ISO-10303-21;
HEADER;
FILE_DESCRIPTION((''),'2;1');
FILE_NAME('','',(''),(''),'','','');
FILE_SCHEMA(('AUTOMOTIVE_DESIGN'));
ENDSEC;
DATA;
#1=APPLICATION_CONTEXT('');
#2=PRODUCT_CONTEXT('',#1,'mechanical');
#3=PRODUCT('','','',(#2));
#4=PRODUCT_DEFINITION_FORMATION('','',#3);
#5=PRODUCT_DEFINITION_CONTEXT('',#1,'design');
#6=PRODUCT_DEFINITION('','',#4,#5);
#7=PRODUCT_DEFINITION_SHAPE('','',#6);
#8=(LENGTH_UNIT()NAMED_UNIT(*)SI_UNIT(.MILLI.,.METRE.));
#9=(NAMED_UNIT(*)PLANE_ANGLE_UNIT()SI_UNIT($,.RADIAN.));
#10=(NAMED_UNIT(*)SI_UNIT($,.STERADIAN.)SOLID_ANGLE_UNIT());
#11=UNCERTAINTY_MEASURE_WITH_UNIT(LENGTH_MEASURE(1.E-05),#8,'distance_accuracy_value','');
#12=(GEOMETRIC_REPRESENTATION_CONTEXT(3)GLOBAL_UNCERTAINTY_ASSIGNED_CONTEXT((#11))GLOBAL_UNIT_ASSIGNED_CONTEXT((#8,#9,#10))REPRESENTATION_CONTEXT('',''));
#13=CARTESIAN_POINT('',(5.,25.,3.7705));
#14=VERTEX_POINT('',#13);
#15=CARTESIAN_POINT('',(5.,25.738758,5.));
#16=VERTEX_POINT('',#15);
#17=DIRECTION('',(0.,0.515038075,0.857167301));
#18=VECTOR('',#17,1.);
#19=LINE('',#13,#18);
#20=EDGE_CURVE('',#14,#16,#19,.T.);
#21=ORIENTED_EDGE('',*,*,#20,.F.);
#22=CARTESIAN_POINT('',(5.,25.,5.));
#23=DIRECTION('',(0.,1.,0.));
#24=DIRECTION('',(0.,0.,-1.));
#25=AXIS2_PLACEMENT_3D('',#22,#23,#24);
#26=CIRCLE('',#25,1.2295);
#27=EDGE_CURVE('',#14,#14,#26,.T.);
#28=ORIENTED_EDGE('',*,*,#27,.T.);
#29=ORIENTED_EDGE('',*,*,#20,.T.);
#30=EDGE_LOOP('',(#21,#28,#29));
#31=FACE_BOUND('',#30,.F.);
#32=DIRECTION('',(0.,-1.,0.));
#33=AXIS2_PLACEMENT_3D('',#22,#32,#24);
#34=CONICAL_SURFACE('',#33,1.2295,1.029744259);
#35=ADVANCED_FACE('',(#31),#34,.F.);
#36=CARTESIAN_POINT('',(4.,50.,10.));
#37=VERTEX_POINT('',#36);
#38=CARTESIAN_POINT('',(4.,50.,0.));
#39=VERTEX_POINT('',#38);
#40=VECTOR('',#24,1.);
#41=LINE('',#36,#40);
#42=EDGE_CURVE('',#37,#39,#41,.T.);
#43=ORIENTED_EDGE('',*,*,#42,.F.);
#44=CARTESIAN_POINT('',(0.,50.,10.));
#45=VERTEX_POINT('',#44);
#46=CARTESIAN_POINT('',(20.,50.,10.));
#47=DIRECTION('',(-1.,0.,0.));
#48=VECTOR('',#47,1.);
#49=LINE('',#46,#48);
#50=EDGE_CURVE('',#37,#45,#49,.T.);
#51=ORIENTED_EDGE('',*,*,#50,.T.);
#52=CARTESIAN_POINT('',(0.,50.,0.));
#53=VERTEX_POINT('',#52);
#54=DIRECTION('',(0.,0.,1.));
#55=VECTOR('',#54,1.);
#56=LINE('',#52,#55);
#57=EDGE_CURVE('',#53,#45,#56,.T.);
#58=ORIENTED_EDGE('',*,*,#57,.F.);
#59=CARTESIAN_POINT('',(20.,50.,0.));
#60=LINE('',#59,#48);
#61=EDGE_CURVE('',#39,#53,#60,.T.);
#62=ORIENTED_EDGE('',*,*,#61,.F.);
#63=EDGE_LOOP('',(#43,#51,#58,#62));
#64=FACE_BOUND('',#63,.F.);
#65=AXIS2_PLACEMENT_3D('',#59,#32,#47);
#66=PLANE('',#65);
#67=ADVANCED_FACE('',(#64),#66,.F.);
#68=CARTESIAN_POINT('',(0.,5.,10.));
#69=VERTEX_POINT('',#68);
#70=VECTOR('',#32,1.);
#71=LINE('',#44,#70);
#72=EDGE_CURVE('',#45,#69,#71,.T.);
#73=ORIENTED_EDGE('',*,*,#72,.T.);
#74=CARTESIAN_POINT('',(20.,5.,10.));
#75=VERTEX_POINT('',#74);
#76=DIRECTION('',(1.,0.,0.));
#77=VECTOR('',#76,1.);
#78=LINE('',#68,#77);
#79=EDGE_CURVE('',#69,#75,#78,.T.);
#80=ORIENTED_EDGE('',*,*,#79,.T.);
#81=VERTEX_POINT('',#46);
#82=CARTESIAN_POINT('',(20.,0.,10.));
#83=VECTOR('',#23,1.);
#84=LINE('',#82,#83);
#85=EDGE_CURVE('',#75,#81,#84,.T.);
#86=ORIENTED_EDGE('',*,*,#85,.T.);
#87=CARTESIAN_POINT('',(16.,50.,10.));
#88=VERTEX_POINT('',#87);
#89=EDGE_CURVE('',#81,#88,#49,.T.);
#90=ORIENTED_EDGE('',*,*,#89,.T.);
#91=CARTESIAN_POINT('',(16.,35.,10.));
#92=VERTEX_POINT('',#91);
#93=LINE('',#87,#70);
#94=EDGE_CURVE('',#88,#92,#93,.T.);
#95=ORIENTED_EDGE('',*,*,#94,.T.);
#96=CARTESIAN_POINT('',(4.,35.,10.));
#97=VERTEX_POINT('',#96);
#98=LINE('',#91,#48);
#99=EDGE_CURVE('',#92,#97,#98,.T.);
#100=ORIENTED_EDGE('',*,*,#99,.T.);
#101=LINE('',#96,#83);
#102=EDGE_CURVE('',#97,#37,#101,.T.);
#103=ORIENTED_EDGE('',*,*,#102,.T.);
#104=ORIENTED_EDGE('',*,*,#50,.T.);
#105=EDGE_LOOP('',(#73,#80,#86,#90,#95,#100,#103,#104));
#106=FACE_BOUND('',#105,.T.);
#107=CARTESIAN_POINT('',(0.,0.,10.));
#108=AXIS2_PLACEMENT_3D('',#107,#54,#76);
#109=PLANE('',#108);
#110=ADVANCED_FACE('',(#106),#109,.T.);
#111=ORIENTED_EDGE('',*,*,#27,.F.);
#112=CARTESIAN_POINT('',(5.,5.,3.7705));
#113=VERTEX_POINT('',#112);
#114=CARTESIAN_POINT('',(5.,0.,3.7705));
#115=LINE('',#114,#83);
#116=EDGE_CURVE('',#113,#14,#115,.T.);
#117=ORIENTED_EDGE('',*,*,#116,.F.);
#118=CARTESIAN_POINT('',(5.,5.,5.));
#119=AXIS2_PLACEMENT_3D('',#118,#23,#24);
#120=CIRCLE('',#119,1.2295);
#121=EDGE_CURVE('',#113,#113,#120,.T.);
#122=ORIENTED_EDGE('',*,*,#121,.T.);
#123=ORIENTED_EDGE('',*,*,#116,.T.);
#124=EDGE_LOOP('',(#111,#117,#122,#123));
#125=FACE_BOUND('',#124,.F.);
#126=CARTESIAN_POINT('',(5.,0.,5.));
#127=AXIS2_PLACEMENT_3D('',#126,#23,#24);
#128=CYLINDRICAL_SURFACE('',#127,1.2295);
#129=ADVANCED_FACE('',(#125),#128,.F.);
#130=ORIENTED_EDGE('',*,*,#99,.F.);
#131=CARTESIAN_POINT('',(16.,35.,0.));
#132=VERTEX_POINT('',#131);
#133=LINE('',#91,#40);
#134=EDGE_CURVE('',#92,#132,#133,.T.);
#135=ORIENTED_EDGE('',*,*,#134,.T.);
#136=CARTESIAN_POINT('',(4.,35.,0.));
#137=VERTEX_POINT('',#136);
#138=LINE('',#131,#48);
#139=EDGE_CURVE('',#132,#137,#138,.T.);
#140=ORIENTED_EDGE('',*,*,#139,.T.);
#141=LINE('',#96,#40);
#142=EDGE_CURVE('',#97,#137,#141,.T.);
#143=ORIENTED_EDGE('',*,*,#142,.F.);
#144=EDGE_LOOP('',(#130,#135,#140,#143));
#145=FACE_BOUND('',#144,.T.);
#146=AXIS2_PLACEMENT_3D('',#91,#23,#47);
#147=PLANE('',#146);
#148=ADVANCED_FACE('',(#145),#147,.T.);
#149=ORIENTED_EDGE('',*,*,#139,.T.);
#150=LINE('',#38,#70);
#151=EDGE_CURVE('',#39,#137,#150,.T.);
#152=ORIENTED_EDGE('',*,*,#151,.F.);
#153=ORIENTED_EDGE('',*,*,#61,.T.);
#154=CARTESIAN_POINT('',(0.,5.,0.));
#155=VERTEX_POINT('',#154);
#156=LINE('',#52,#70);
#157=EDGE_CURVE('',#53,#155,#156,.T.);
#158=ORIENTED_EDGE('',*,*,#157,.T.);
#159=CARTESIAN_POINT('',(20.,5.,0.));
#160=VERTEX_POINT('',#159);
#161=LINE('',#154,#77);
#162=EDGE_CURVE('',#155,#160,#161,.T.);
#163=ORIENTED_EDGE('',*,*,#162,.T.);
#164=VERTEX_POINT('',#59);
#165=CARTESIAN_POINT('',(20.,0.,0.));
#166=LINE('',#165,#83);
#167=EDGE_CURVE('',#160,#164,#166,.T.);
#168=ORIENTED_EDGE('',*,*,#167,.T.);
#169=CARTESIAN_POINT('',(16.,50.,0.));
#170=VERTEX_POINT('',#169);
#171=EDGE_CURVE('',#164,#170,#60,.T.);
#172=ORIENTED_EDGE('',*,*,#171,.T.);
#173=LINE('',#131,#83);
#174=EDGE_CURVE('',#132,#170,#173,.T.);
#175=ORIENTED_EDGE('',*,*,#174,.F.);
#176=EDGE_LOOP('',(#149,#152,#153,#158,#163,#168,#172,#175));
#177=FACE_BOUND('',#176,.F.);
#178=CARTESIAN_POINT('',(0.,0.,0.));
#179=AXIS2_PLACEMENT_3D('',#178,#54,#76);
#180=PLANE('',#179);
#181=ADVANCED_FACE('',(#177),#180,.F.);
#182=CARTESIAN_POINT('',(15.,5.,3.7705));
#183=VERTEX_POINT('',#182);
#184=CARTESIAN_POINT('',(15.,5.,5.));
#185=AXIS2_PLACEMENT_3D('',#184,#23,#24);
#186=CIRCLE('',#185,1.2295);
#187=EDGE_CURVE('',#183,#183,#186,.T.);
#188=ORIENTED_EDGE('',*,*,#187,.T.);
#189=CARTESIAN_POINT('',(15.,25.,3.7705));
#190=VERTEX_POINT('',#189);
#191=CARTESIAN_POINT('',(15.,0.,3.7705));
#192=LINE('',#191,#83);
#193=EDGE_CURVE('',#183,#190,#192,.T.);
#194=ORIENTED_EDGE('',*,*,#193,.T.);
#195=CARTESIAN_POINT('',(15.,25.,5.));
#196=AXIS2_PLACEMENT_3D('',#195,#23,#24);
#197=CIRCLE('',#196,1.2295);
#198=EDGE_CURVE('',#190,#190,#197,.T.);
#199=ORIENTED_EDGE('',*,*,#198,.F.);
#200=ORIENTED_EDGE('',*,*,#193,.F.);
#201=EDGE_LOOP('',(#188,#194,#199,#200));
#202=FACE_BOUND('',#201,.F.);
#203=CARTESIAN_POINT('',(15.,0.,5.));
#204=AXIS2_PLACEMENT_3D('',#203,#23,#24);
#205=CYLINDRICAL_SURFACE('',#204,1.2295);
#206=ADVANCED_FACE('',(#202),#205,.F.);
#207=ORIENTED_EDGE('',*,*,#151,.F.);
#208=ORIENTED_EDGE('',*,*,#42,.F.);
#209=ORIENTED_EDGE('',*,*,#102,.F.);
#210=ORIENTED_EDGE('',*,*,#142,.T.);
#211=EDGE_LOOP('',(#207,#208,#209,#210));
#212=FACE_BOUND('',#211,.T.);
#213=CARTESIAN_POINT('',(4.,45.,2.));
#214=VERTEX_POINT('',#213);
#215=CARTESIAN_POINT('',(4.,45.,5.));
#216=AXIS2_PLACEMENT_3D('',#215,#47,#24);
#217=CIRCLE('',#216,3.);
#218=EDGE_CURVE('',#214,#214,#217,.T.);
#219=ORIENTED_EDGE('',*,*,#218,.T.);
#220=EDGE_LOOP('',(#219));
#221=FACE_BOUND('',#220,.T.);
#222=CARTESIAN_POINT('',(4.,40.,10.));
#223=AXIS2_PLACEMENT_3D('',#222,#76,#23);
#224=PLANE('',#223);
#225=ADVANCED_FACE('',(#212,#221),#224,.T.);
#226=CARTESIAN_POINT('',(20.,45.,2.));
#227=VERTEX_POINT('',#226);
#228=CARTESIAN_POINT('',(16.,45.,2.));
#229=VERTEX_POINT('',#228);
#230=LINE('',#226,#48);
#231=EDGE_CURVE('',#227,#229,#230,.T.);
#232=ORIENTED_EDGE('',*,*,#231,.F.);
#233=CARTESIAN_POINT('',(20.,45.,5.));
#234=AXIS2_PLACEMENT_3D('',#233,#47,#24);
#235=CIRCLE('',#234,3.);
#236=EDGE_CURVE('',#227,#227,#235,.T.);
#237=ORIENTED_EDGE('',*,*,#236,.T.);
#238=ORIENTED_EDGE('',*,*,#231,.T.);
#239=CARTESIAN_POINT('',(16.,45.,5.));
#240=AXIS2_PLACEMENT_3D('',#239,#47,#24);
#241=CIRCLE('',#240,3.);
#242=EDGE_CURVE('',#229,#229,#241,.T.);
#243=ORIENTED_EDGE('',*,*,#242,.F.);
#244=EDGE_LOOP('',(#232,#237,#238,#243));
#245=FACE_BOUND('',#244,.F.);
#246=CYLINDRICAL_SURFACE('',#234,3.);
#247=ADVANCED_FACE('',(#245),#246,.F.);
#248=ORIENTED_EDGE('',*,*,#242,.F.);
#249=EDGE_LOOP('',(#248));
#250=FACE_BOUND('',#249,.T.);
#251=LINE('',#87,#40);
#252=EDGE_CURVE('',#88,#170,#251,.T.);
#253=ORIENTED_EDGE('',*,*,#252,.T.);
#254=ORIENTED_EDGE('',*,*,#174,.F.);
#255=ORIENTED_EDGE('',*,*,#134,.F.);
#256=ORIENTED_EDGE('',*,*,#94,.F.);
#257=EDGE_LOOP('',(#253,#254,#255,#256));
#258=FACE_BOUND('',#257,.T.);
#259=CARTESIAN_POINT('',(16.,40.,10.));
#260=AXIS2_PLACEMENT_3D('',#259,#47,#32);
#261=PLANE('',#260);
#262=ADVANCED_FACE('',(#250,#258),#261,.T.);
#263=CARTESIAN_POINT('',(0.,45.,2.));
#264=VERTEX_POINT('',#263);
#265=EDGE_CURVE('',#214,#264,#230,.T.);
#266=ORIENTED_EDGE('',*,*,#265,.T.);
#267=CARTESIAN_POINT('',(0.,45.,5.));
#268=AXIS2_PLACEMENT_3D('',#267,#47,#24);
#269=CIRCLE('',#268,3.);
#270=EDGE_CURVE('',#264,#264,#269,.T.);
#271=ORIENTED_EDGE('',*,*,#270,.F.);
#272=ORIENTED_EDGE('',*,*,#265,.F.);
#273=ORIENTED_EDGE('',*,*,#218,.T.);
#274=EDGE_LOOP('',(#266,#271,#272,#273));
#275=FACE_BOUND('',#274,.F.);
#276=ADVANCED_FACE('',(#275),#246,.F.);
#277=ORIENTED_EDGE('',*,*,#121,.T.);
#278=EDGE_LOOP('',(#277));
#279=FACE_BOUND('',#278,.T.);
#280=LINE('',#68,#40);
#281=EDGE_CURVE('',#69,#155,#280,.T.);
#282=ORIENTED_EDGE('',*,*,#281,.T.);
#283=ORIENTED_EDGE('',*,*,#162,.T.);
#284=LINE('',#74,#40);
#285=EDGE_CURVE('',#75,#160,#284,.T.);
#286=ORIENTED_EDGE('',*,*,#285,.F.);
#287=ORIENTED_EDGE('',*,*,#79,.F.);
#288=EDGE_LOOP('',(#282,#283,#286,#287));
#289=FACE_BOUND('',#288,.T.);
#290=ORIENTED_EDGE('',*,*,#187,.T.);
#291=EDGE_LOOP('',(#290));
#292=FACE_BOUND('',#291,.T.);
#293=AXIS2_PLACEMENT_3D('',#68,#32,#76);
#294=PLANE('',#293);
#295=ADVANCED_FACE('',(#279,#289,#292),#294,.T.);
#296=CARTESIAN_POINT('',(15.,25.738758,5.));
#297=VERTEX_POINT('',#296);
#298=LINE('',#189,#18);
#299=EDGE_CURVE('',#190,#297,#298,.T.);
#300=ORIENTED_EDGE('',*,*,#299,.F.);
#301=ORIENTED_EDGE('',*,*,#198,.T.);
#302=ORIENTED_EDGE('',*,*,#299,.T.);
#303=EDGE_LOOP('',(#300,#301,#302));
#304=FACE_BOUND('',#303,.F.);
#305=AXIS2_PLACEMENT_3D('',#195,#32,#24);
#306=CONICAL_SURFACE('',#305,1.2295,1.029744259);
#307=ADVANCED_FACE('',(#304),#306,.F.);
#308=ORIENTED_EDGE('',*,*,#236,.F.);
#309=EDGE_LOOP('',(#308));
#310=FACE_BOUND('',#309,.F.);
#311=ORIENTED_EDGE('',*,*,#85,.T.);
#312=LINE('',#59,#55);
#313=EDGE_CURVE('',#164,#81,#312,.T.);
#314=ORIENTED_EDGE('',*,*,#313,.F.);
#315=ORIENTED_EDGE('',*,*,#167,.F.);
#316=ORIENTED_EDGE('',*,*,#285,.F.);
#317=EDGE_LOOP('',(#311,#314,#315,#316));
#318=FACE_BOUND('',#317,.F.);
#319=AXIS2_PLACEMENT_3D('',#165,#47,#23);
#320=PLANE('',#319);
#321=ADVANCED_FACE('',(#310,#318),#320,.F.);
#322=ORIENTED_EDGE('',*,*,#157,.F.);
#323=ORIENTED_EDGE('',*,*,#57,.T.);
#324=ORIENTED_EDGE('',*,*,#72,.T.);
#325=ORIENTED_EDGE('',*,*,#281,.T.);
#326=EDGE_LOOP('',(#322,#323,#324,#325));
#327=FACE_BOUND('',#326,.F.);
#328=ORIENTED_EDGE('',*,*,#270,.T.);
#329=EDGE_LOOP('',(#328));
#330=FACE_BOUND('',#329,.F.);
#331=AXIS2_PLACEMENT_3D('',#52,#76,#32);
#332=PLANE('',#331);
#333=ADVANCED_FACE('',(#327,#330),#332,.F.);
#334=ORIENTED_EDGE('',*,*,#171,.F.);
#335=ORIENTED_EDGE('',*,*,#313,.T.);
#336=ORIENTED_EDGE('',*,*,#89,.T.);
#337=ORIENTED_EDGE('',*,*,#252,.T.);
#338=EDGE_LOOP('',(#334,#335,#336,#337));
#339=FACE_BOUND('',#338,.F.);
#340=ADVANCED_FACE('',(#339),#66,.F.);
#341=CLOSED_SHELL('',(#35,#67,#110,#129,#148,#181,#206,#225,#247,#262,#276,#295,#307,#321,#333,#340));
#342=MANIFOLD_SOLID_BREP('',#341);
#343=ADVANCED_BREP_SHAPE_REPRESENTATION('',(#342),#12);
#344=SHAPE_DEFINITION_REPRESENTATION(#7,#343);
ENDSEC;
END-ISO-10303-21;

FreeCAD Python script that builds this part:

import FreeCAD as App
import Part
import Sketcher


def add_polygon(sketch, points):
    """Adds a closed chain of lines whose ends are joined by coincident constraints."""
    first, n = sketch.GeometryCount, len(points)
    for a, b in zip(points, points[1:] + points[:1]):
        sketch.addGeometry(Part.LineSegment(App.Vector(*a, 0), App.Vector(*b, 0)), False)
    for i in range(n):
        sketch.addConstraint(Sketcher.Constraint("Coincident", first + i, 2, first + (i + 1) % n, 1))

doc = App.newDocument("Part")
body = doc.addObject("PartDesign::Body", "Body")

sketch1 = doc.addObject("Sketcher::SketchObject", "Sketch")
body.addObject(sketch1)
sketch1.AttachmentSupport = (doc.XY_Plane, [""])
sketch1.MapMode = "FlatFace"
add_polygon(sketch1, [(0, 50), (0, 0), (20, 0), (20, 50)])
sketch1.addConstraint([
    Sketcher.Constraint("Vertical", 0),
    Sketcher.Constraint("Horizontal", 1),
    Sketcher.Constraint("Vertical", 2),
    Sketcher.Constraint("Horizontal", 3),
    Sketcher.Constraint("Coincident", 0, 2, -1, 1),
    Sketcher.Constraint("DistanceX", 1, 1, 1, 2, 20.0),
    Sketcher.Constraint("DistanceY", 0, 2, 0, 1, 50.0),
])
pad1 = doc.addObject("PartDesign::Pad", "Pad")
body.addObject(pad1)
pad1.Profile = sketch1
pad1.Length = 10

sketch2 = doc.addObject("Sketcher::SketchObject", "Sketch001")
body.addObject(sketch2)
sketch2.AttachmentSupport = (doc.XY_Plane, [""])
sketch2.MapMode = "FlatFace"
sketch2.AttachmentOffset = App.Placement(App.Vector(0, 0, 10), App.Rotation())
add_polygon(sketch2, [(16, 40), (16, 50), (4, 50), (4, 40)])
sketch2.addConstraint([
    Sketcher.Constraint("Vertical", 0),
    Sketcher.Constraint("Horizontal", 1),
    Sketcher.Constraint("Vertical", 2),
    Sketcher.Constraint("Horizontal", 3),
    Sketcher.Constraint("DistanceX", 1, 2, 1, 1, 12.0),
    Sketcher.Constraint("DistanceY", 0, 1, 0, 2, 10.0),
    Sketcher.Constraint("DistanceX", -1, 1, 1, 2, 4.0),
    Sketcher.Constraint("DistanceY", -1, 1, 0, 2, 50.0),
])
pocket1 = doc.addObject("PartDesign::Pocket", "Pocket")
body.addObject(pocket1)
pocket1.Profile = sketch2
pocket1.Length = 10

sketch3 = doc.addObject("Sketcher::SketchObject", "Sketch002")
body.addObject(sketch3)
sketch3.AttachmentSupport = (doc.YZ_Plane, [""])
sketch3.MapMode = "FlatFace"
sketch3.AttachmentOffset = App.Placement(App.Vector(0, 0, 20), App.Rotation())
sketch3.addGeometry(Part.Circle(App.Vector(45, 5, 0), App.Vector(0, 0, 1), 3), False)
sketch3.addConstraint([
    Sketcher.Constraint("Diameter", 0, 6.0),
    Sketcher.Constraint("DistanceX", -1, 1, 0, 3, 45.0),
    Sketcher.Constraint("DistanceY", -1, 1, 0, 3, 5.0),
])
doc.recompute()
hole = doc.addObject("PartDesign::Hole", "Hole")
body.addObject(hole)
hole.Profile = sketch3
hole.ThreadType = "None"
hole.Diameter = 6
hole.DepthType = "ThroughAll"

sketch4 = doc.addObject("Sketcher::SketchObject", "Sketch003")
body.addObject(sketch4)
sketch4.AttachmentSupport = (doc.XZ_Plane, [""])
sketch4.MapMode = "FlatFace"
sketch4.addGeometry([
    Part.Circle(App.Vector(5, 5, 0), App.Vector(0, 0, 1), 1.2),
    Part.Circle(App.Vector(15, 5, 0), App.Vector(0, 0, 1), 1.2),
], False)
sketch4.addConstraint([
    Sketcher.Constraint("Equal", 0, 1),
    Sketcher.Constraint("Horizontal", 0, 3, 1, 3),
    Sketcher.Constraint("Diameter", 0, 2.459),
    Sketcher.Constraint("DistanceX", -1, 1, 0, 3, 5.0),
    Sketcher.Constraint("DistanceY", -1, 1, 0, 3, 5.0),
    Sketcher.Constraint("DistanceX", -1, 1, 1, 3, 15.0),
])
doc.recompute()
hole2 = doc.addObject("PartDesign::Hole", "Hole001")
body.addObject(hole2)
hole2.Profile = sketch4
hole2.ThreadType = "None"
hole2.Diameter = 2.459
hole2.DepthType = "Dimension"
hole2.Depth = 25
hole2.DrillPoint = "Angled"
hole2.DrillPointAngle = 118

sketch5 = doc.addObject("Sketcher::SketchObject", "Sketch004")
body.addObject(sketch5)
sketch5.AttachmentSupport = (doc.XY_Plane, [""])
sketch5.MapMode = "FlatFace"
sketch5.AttachmentOffset = App.Placement(App.Vector(0, 0, 10), App.Rotation())
add_polygon(sketch5, [(16, 40), (4, 40), (4, 35), (16, 35)])
sketch5.addConstraint([
    Sketcher.Constraint("Horizontal", 0),
    Sketcher.Constraint("Vertical", 1),
    Sketcher.Constraint("Horizontal", 2),
    Sketcher.Constraint("Vertical", 3),
    Sketcher.Constraint("DistanceY", 1, 2, 1, 1, 5.0),
    Sketcher.Constraint("DistanceX", 0, 2, 0, 1, 12.0),
    Sketcher.Constraint("DistanceX", -1, 1, 0, 2, 4.0),
    Sketcher.Constraint("DistanceY", -1, 1, 0, 2, 40.0),
])
pocket2 = doc.addObject("PartDesign::Pocket", "Pocket001")
body.addObject(pocket2)
pocket2.Profile = sketch5
pocket2.Length = 10

sketch6 = doc.addObject("Sketcher::SketchObject", "Sketch005")
body.addObject(sketch6)
sketch6.AttachmentSupport = (doc.XY_Plane, [""])
sketch6.MapMode = "FlatFace"
sketch6.AttachmentOffset = App.Placement(App.Vector(0, 0, 10), App.Rotation())
add_polygon(sketch6, [(20, 5), (0, 5), (0, 0), (20, 0)])
sketch6.addConstraint([
    Sketcher.Constraint("Horizontal", 0),
    Sketcher.Constraint("Vertical", 1),
    Sketcher.Constraint("Horizontal", 2),
    Sketcher.Constraint("Vertical", 3),
    Sketcher.Constraint("Coincident", 1, 2, -1, 1),
    Sketcher.Constraint("DistanceY", 1, 2, 1, 1, 5.0),
    Sketcher.Constraint("DistanceX", 0, 2, 0, 1, 20.0),
])
pocket3 = doc.addObject("PartDesign::Pocket", "Pocket002")
body.addObject(pocket3)
pocket3.Profile = sketch6
pocket3.Length = 10

doc.recompute()
